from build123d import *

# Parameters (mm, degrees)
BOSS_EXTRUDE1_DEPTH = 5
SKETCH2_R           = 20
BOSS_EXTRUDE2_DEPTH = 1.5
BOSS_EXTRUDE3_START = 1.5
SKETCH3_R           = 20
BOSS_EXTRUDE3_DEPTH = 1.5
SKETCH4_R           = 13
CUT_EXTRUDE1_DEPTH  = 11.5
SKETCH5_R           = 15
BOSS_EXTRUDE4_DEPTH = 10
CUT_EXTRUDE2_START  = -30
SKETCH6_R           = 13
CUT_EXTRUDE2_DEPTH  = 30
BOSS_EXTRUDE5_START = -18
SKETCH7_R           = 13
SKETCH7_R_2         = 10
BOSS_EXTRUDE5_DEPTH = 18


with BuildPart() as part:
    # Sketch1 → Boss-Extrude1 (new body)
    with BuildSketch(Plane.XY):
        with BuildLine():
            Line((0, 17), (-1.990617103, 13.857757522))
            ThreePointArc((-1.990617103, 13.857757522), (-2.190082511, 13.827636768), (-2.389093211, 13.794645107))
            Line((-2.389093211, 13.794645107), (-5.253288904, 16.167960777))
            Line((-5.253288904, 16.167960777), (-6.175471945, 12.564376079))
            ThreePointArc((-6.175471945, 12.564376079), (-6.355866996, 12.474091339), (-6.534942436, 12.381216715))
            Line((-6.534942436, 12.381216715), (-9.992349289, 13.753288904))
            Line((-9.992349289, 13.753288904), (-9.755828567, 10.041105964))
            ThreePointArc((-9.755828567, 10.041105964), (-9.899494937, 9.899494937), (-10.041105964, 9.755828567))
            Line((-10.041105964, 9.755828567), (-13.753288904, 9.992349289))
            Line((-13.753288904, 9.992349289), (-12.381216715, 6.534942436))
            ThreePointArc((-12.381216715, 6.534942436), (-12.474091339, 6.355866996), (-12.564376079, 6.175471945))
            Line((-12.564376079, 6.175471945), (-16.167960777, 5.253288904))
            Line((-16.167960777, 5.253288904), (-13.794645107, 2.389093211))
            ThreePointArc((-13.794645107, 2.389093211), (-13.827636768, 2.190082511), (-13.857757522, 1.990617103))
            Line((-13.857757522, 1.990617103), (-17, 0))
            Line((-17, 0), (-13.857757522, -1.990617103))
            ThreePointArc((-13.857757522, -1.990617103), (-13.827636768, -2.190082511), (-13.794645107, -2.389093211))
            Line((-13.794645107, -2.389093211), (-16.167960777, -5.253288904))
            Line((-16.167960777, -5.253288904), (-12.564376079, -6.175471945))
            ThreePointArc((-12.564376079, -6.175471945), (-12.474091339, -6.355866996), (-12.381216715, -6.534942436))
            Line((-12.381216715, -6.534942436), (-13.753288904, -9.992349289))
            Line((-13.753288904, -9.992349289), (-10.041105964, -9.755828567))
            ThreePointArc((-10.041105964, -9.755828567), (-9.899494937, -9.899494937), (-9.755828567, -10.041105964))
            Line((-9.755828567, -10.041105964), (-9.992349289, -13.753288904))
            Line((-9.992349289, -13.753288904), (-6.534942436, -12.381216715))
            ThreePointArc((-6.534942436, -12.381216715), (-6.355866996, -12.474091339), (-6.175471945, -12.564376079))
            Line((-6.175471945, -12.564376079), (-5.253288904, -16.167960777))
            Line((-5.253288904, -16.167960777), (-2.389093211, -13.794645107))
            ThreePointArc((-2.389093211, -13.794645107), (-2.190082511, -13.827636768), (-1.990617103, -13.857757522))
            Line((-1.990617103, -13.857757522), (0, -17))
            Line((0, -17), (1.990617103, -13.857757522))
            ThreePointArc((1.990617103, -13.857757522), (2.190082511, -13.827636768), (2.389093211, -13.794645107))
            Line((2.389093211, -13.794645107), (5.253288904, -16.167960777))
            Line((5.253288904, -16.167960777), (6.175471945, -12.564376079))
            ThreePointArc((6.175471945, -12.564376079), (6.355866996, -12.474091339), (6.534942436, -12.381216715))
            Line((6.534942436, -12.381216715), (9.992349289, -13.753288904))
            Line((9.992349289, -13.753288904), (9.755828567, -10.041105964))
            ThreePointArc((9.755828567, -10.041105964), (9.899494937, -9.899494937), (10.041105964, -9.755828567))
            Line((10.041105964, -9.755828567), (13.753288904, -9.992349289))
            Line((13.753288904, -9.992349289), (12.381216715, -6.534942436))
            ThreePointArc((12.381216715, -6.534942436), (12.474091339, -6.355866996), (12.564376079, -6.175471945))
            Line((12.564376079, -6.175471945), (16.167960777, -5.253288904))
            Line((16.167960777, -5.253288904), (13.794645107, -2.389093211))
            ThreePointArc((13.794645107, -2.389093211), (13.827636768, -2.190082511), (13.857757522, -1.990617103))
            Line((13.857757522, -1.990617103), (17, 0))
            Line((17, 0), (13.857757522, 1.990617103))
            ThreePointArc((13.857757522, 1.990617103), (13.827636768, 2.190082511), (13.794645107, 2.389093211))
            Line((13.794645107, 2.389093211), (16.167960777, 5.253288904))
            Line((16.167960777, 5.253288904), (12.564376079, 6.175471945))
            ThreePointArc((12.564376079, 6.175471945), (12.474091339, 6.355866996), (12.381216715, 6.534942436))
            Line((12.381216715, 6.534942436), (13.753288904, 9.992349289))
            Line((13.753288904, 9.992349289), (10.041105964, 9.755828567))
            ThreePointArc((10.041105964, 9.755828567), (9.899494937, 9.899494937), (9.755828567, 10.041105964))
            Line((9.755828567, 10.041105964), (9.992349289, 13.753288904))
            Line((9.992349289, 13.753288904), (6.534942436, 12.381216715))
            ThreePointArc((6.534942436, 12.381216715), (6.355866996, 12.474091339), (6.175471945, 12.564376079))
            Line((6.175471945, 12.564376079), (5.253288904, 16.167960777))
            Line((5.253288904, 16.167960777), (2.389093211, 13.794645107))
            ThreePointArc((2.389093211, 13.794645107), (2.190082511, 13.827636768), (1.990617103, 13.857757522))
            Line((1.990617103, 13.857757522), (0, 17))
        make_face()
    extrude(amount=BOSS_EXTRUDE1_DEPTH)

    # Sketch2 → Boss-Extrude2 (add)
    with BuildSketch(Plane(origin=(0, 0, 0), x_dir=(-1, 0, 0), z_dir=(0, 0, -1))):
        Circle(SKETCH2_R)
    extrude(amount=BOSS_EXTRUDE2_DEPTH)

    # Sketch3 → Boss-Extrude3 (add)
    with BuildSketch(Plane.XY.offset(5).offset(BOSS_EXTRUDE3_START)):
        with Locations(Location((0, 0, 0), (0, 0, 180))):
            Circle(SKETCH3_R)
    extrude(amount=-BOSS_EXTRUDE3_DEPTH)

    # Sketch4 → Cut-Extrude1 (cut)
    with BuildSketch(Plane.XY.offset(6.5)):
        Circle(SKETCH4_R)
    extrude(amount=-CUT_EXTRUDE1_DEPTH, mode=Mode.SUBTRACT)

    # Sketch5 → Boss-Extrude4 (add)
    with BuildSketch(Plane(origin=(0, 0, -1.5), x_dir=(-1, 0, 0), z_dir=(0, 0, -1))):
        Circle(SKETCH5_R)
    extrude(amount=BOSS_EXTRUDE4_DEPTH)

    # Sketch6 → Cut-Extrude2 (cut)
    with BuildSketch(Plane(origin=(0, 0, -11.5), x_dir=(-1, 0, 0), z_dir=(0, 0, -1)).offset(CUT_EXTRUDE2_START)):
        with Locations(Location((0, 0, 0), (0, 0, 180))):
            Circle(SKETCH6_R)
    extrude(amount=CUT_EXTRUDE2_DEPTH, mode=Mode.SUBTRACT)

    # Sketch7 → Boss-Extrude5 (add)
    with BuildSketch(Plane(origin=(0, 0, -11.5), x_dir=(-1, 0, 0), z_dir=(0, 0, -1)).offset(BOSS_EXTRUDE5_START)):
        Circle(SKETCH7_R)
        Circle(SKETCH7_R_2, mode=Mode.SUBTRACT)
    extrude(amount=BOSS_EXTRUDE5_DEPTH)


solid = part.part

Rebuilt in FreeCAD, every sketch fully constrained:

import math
import FreeCAD as App
import Part
import Sketcher
Q = App.Units.Quantity

doc = App.newDocument("Part")
body = doc.addObject("PartDesign::Body", "Body")

sketch1 = doc.addObject("Sketcher::SketchObject", "Sketch")
body.addObject(sketch1)
sketch1.AttachmentSupport = (doc.XY_Plane, [""])
sketch1.MapMode = "FlatFace"
sketch1.addGeometry([
    Part.LineSegment(App.Vector(0, 17, 0), App.Vector(-1.99, 13.86, 0)),
    Part.ArcOfCircle(Part.Circle(App.Vector(0, 0, 0), App.Vector(0, 0, 1), 14), math.radians(98.17), math.radians(99.83)),
    Part.LineSegment(App.Vector(-2.39, 13.79, 0), App.Vector(-5.25, 16.17, 0)),
    Part.LineSegment(App.Vector(-5.25, 16.17, 0), App.Vector(-6.18, 12.56, 0)),
    Part.ArcOfCircle(Part.Circle(App.Vector(0, 0, 0), App.Vector(0, 0, 1), 14), math.radians(116.17), math.radians(117.83)),
    Part.LineSegment(App.Vector(-6.53, 12.38, 0), App.Vector(-9.99, 13.75, 0)),
    Part.LineSegment(App.Vector(-9.99, 13.75, 0), App.Vector(-9.76, 10.04, 0)),
    Part.ArcOfCircle(Part.Circle(App.Vector(0, 0, 0), App.Vector(0, 0, 1), 14), math.radians(134.17), math.radians(135.83)),
    Part.LineSegment(App.Vector(-10.04, 9.76, 0), App.Vector(-13.75, 9.99, 0)),
    Part.LineSegment(App.Vector(-13.75, 9.99, 0), App.Vector(-12.38, 6.53, 0)),
    Part.ArcOfCircle(Part.Circle(App.Vector(0, 0, 0), App.Vector(0, 0, 1), 14), math.radians(152.17), math.radians(153.83)),
    Part.LineSegment(App.Vector(-12.56, 6.18, 0), App.Vector(-16.17, 5.25, 0)),
    Part.LineSegment(App.Vector(-16.17, 5.25, 0), App.Vector(-13.79, 2.39, 0)),
    Part.ArcOfCircle(Part.Circle(App.Vector(0, 0, 0), App.Vector(0, 0, 1), 14), math.radians(170.17), math.radians(171.83)),
    Part.LineSegment(App.Vector(-13.86, 1.99, 0), App.Vector(-17, 0, 0)),
    Part.LineSegment(App.Vector(-17, 0, 0), App.Vector(-13.86, -1.99, 0)),
    Part.ArcOfCircle(Part.Circle(App.Vector(0, 0, 0), App.Vector(0, 0, 1), 14), math.radians(-171.83), math.radians(-170.17)),
    Part.LineSegment(App.Vector(-13.79, -2.39, 0), App.Vector(-16.17, -5.25, 0)),
    Part.LineSegment(App.Vector(-16.17, -5.25, 0), App.Vector(-12.56, -6.18, 0)),
    Part.ArcOfCircle(Part.Circle(App.Vector(0, 0, 0), App.Vector(0, 0, 1), 14), math.radians(-153.83), math.radians(-152.17)),
    Part.LineSegment(App.Vector(-12.38, -6.53, 0), App.Vector(-13.75, -9.99, 0)),
    Part.LineSegment(App.Vector(-13.75, -9.99, 0), App.Vector(-10.04, -9.76, 0)),
    Part.ArcOfCircle(Part.Circle(App.Vector(0, 0, 0), App.Vector(0, 0, 1), 14), math.radians(-135.83), math.radians(-134.17)),
    Part.LineSegment(App.Vector(-9.76, -10.04, 0), App.Vector(-9.99, -13.75, 0)),
    Part.LineSegment(App.Vector(-9.99, -13.75, 0), App.Vector(-6.53, -12.38, 0)),
    Part.ArcOfCircle(Part.Circle(App.Vector(0, 0, 0), App.Vector(0, 0, 1), 14), math.radians(-117.83), math.radians(-116.17)),
    Part.LineSegment(App.Vector(-6.18, -12.56, 0), App.Vector(-5.25, -16.17, 0)),
    Part.LineSegment(App.Vector(-5.25, -16.17, 0), App.Vector(-2.39, -13.79, 0)),
    Part.ArcOfCircle(Part.Circle(App.Vector(0, 0, 0), App.Vector(0, 0, 1), 14), math.radians(-99.83), math.radians(-98.17)),
    Part.LineSegment(App.Vector(-1.99, -13.86, 0), App.Vector(0, -17, 0)),
    Part.LineSegment(App.Vector(0, -17, 0), App.Vector(1.99, -13.86, 0)),
    Part.ArcOfCircle(Part.Circle(App.Vector(0, 0, 0), App.Vector(0, 0, 1), 14), math.radians(-81.83), math.radians(-80.17)),
    Part.LineSegment(App.Vector(2.39, -13.79, 0), App.Vector(5.25, -16.17, 0)),
    Part.LineSegment(App.Vector(5.25, -16.17, 0), App.Vector(6.18, -12.56, 0)),
    Part.ArcOfCircle(Part.Circle(App.Vector(0, 0, 0), App.Vector(0, 0, 1), 14), math.radians(-63.83), math.radians(-62.17)),
    Part.LineSegment(App.Vector(6.53, -12.38, 0), App.Vector(9.99, -13.75, 0)),
    Part.LineSegment(App.Vector(9.99, -13.75, 0), App.Vector(9.76, -10.04, 0)),
    Part.ArcOfCircle(Part.Circle(App.Vector(0, 0, 0), App.Vector(0, 0, 1), 14), math.radians(-45.83), math.radians(-44.17)),
    Part.LineSegment(App.Vector(10.04, -9.76, 0), App.Vector(13.75, -9.99, 0)),
    Part.LineSegment(App.Vector(13.75, -9.99, 0), App.Vector(12.38, -6.53, 0)),
    Part.ArcOfCircle(Part.Circle(App.Vector(0, 0, 0), App.Vector(0, 0, 1), 14), math.radians(-27.83), math.radians(-26.17)),
    Part.LineSegment(App.Vector(12.56, -6.18, 0), App.Vector(16.17, -5.25, 0)),
    Part.LineSegment(App.Vector(16.17, -5.25, 0), App.Vector(13.79, -2.39, 0)),
    Part.ArcOfCircle(Part.Circle(App.Vector(0, 0, 0), App.Vector(0, 0, 1), 14), math.radians(-9.83), math.radians(-8.17)),
    Part.LineSegment(App.Vector(13.86, -1.99, 0), App.Vector(17, 0, 0)),
    Part.LineSegment(App.Vector(17, 0, 0), App.Vector(13.86, 1.99, 0)),
    Part.ArcOfCircle(Part.Circle(App.Vector(0, 0, 0), App.Vector(0, 0, 1), 14), math.radians(8.17), math.radians(9.83)),
    Part.LineSegment(App.Vector(13.79, 2.39, 0), App.Vector(16.17, 5.25, 0)),
    Part.LineSegment(App.Vector(16.17, 5.25, 0), App.Vector(12.56, 6.18, 0)),
    Part.ArcOfCircle(Part.Circle(App.Vector(0, 0, 0), App.Vector(0, 0, 1), 14), math.radians(26.17), math.radians(27.83)),
    Part.LineSegment(App.Vector(12.38, 6.53, 0), App.Vector(13.75, 9.99, 0)),
    Part.LineSegment(App.Vector(13.75, 9.99, 0), App.Vector(10.04, 9.76, 0)),
    Part.ArcOfCircle(Part.Circle(App.Vector(0, 0, 0), App.Vector(0, 0, 1), 14), math.radians(44.17), math.radians(45.83)),
    Part.LineSegment(App.Vector(9.76, 10.04, 0), App.Vector(9.99, 13.75, 0)),
    Part.LineSegment(App.Vector(9.99, 13.75, 0), App.Vector(6.53, 12.38, 0)),
    Part.ArcOfCircle(Part.Circle(App.Vector(0, 0, 0), App.Vector(0, 0, 1), 14), math.radians(62.17), math.radians(63.83)),
    Part.LineSegment(App.Vector(6.18, 12.56, 0), App.Vector(5.25, 16.17, 0)),
    Part.LineSegment(App.Vector(5.25, 16.17, 0), App.Vector(2.39, 13.79, 0)),
    Part.ArcOfCircle(Part.Circle(App.Vector(0, 0, 0), App.Vector(0, 0, 1), 14), math.radians(80.17), math.radians(81.83)),
    Part.LineSegment(App.Vector(1.99, 13.86, 0), App.Vector(0, 17, 0)),
], False)
sketch1.addConstraint([
    Sketcher.Constraint("Coincident", 0, 2, 1, 1),
    Sketcher.Constraint("Coincident", 1, 2, 2, 1),
    Sketcher.Constraint("Coincident", 2, 2, 3, 1),
    Sketcher.Constraint("Coincident", 3, 2, 4, 1),
    Sketcher.Constraint("Coincident", 4, 2, 5, 1),
    Sketcher.Constraint("Coincident", 5, 2, 6, 1),
    Sketcher.Constraint("Coincident", 6, 2, 7, 1),
    Sketcher.Constraint("Coincident", 7, 2, 8, 1),
    Sketcher.Constraint("Coincident", 8, 2, 9, 1),
    Sketcher.Constraint("Coincident", 9, 2, 10, 1),
    Sketcher.Constraint("Coincident", 10, 2, 11, 1),
    Sketcher.Constraint("Coincident", 11, 2, 12, 1),
    Sketcher.Constraint("Coincident", 12, 2, 13, 1),
    Sketcher.Constraint("Coincident", 13, 2, 14, 1),
    Sketcher.Constraint("Coincident", 14, 2, 15, 1),
    Sketcher.Constraint("Coincident", 15, 2, 16, 1),
    Sketcher.Constraint("Coincident", 16, 2, 17, 1),
    Sketcher.Constraint("Coincident", 17, 2, 18, 1),
    Sketcher.Constraint("Coincident", 18, 2, 19, 1),
    Sketcher.Constraint("Coincident", 19, 2, 20, 1),
    Sketcher.Constraint("Coincident", 20, 2, 21, 1),
    Sketcher.Constraint("Coincident", 21, 2, 22, 1),
    Sketcher.Constraint("Coincident", 22, 2, 23, 1),
    Sketcher.Constraint("Coincident", 23, 2, 24, 1),
    Sketcher.Constraint("Coincident", 24, 2, 25, 1),
    Sketcher.Constraint("Coincident", 25, 2, 26, 1),
    Sketcher.Constraint("Coincident", 26, 2, 27, 1),
    Sketcher.Constraint("Coincident", 27, 2, 28, 1),
    Sketcher.Constraint("Coincident", 28, 2, 29, 1),
    Sketcher.Constraint("Coincident", 29, 2, 30, 1),
    Sketcher.Constraint("Coincident", 30, 2, 31, 1),
    Sketcher.Constraint("Coincident", 31, 2, 32, 1),
    Sketcher.Constraint("Coincident", 32, 2, 33, 1),
    Sketcher.Constraint("Coincident", 33, 2, 34, 1),
    Sketcher.Constraint("Coincident", 34, 2, 35, 1),
    Sketcher.Constraint("Coincident", 35, 2, 36, 1),
    Sketcher.Constraint("Coincident", 36, 2, 37, 1),
    Sketcher.Constraint("Coincident", 37, 2, 38, 1),
    Sketcher.Constraint("Coincident", 38, 2, 39, 1),
    Sketcher.Constraint("Coincident", 39, 2, 40, 1),
    Sketcher.Constraint("Coincident", 40, 2, 41, 1),
    Sketcher.Constraint("Coincident", 41, 2, 42, 1),
    Sketcher.Constraint("Coincident", 42, 2, 43, 1),
    Sketcher.Constraint("Coincident", 43, 2, 44, 1),
    Sketcher.Constraint("Coincident", 44, 2, 45, 1),
    Sketcher.Constraint("Coincident", 45, 2, 46, 1),
    Sketcher.Constraint("Coincident", 46, 2, 47, 1),
    Sketcher.Constraint("Coincident", 47, 2, 48, 1),
    Sketcher.Constraint("Coincident", 48, 2, 49, 1),
    Sketcher.Constraint("Coincident", 49, 2, 50, 1),
    Sketcher.Constraint("Coincident", 50, 2, 51, 1),
    Sketcher.Constraint("Coincident", 51, 2, 52, 1),
    Sketcher.Constraint("Coincident", 52, 2, 53, 1),
    Sketcher.Constraint("Coincident", 53, 2, 54, 1),
    Sketcher.Constraint("Coincident", 54, 2, 55, 1),
    Sketcher.Constraint("Coincident", 55, 2, 56, 1),
    Sketcher.Constraint("Coincident", 56, 2, 57, 1),
    Sketcher.Constraint("Coincident", 57, 2, 58, 1),
    Sketcher.Constraint("Coincident", 58, 2, 59, 1),
    Sketcher.Constraint("Coincident", 59, 2, 0, 1),
    Sketcher.Constraint("Coincident", 1, 3, -1, 1),
    Sketcher.Constraint("Coincident", 4, 3, -1, 1),
    Sketcher.Constraint("Coincident", 7, 3, -1, 1),
    Sketcher.Constraint("Coincident", 10, 3, -1, 1),
    Sketcher.Constraint("Coincident", 13, 3, -1, 1),
    Sketcher.Constraint("Coincident", 16, 3, -1, 1),
    Sketcher.Constraint("Coincident", 19, 3, -1, 1),
    Sketcher.Constraint("Coincident", 22, 3, -1, 1),
    Sketcher.Constraint("Coincident", 25, 3, -1, 1),
    Sketcher.Constraint("Coincident", 28, 3, -1, 1),
    Sketcher.Constraint("Coincident", 31, 3, -1, 1),
    Sketcher.Constraint("Coincident", 34, 3, -1, 1),
    Sketcher.Constraint("Coincident", 37, 3, -1, 1),
    Sketcher.Constraint("Coincident", 40, 3, -1, 1),
    Sketcher.Constraint("Coincident", 43, 3, -1, 1),
    Sketcher.Constraint("Coincident", 46, 3, -1, 1),
    Sketcher.Constraint("Coincident", 49, 3, -1, 1),
    Sketcher.Constraint("Coincident", 52, 3, -1, 1),
    Sketcher.Constraint("Coincident", 55, 3, -1, 1),
    Sketcher.Constraint("Coincident", 58, 3, -1, 1),
    Sketcher.Constraint("Equal", 4, 10),
    Sketcher.Constraint("Equal", 1, 13),
    Sketcher.Constraint("Equal", 13, 16),
    Sketcher.Constraint("Equal", 10, 19),
    Sketcher.Constraint("Equal", 7, 22),
    Sketcher.Constraint("Equal", 19, 25),
    Sketcher.Constraint("Equal", 16, 28),
    Sketcher.Constraint("Equal", 28, 31),
    Sketcher.Constraint("Equal", 25, 34),
    Sketcher.Constraint("Equal", 22, 37),
    Sketcher.Constraint("Equal", 34, 40),
    Sketcher.Constraint("Equal", 31, 43),
    Sketcher.Constraint("Equal", 43, 46),
    Sketcher.Constraint("Equal", 40, 49),
    Sketcher.Constraint("Equal", 37, 52),
    Sketcher.Constraint("Equal", 49, 55),
    Sketcher.Constraint("Equal", 46, 58),
    Sketcher.Constraint("Symmetric", 2, 2, 32, 2, -1, 1),
    Sketcher.Constraint("Symmetric", 5, 2, 35, 2, -1, 1),
    Sketcher.Constraint("Symmetric", 8, 2, 38, 2, -1, 1),
    Sketcher.Constraint("Symmetric", 11, 2, 41, 2, -1, 1),
    Sketcher.Constraint("Symmetric", 14, 2, 44, 2, -1, 1),
    Sketcher.Constraint("Symmetric", 17, 2, 47, 2, -1, 1),
    Sketcher.Constraint("Symmetric", 20, 2, 50, 2, -1, 1),
    Sketcher.Constraint("Symmetric", 23, 2, 53, 2, -1, 1),
    Sketcher.Constraint("Symmetric", 26, 2, 56, 2, -1, 1),
    Sketcher.Constraint("Symmetric", 29, 2, 59, 2, -1, 1),
    Sketcher.Constraint("Symmetric", 26, 2, 32, 2, -2),
    Sketcher.Constraint("Symmetric", 23, 2, 35, 2, -2),
    Sketcher.Constraint("Symmetric", 20, 2, 38, 2, -2),
    Sketcher.Constraint("Symmetric", 17, 2, 41, 2, -2),
    Sketcher.Constraint("PointOnObject", 14, 2, -1),
    Sketcher.Constraint("PointOnObject", 29, 2, -2),
    Sketcher.Constraint("Perpendicular", 0, 15),
    Sketcher.Constraint("Perpendicular", 2, 17),
    Sketcher.Constraint("Perpendicular", 3, 18),
    Sketcher.Constraint("Perpendicular", 5, 20),
    Sketcher.Constraint("Perpendicular", 6, 21),
    Sketcher.Constraint("Perpendicular", 8, 23),
    Sketcher.Constraint("Perpendicular", 9, 24),
    Sketcher.Constraint("Perpendicular", 11, 26),
    Sketcher.Constraint("Perpendicular", 12, 27),
    Sketcher.Constraint("Perpendicular", 14, 29),
    Sketcher.Constraint("Perpendicular", 15, 30),
    Sketcher.Constraint("Perpendicular", 17, 32),
    Sketcher.Constraint("Perpendicular", 18, 33),
    Sketcher.Constraint("Perpendicular", 20, 35),
    Sketcher.Constraint("Perpendicular", 21, 36),
    Sketcher.Constraint("Perpendicular", 23, 38),
    Sketcher.Constraint("Perpendicular", 24, 39),
    Sketcher.Constraint("Perpendicular", 26, 41),
    Sketcher.Constraint("Perpendicular", 27, 42),
    Sketcher.Constraint("Perpendicular", 29, 44),
    Sketcher.Constraint("Perpendicular", 30, 45),
    Sketcher.Constraint("Perpendicular", 32, 47),
    Sketcher.Constraint("Perpendicular", 33, 48),
    Sketcher.Constraint("Perpendicular", 35, 50),
    Sketcher.Constraint("Perpendicular", 36, 51),
    Sketcher.Constraint("Perpendicular", 38, 53),
    Sketcher.Constraint("Perpendicular", 39, 54),
    Sketcher.Constraint("Perpendicular", 41, 56),
    Sketcher.Constraint("Perpendicular", 42, 57),
    Sketcher.Constraint("Perpendicular", 44, 59),
    Sketcher.Constraint("Horizontal", 28, 2, 30, 2),
    Sketcher.Constraint("Horizontal", 27, 2, 31, 2),
    Sketcher.Constraint("Horizontal", 25, 2, 33, 2),
    Sketcher.Constraint("Horizontal", 24, 2, 34, 2),
    Sketcher.Constraint("Horizontal", 22, 2, 36, 2),
    Sketcher.Constraint("Equal", 0, 2),
    Sketcher.Constraint("Equal", 2, 3),
    Sketcher.Constraint("Equal", 3, 5),
    Sketcher.Constraint("Equal", 5, 6),
    Sketcher.Constraint("Equal", 6, 8),
    Sketcher.Constraint("Equal", 8, 9),
    Sketcher.Constraint("Equal", 9, 11),
    Sketcher.Constraint("Equal", 11, 12),
    Sketcher.Constraint("Equal", 12, 14),
    Sketcher.Constraint("Radius", 1, Q("14 mm")),
    Sketcher.Constraint("DistanceX", 14, 2, -1, 1, Q("17 mm")),
    Sketcher.Constraint("Radius", 4, Q("13.999996 mm")),
    Sketcher.Constraint("Radius", 7, Q("13.999998 mm")),
    Sketcher.Constraint("Distance", 0, Q("3.71971 mm")),
    Sketcher.Constraint("DistanceX", 2, 2, -1, 1, Q("5.253289 mm")),
    Sketcher.Constraint("DistanceY", -1, 1, 2, 2, Q("16.167961 mm")),
    Sketcher.Constraint("DistanceX", 5, 2, -1, 1, Q("9.992349 mm")),
    Sketcher.Constraint("DistanceY", -1, 1, 5, 2, Q("13.753289 mm")),
])
pad1 = doc.addObject("PartDesign::Pad", "Pad")
body.addObject(pad1)
pad1.Profile = sketch1
pad1.Length = 5

sketch2 = doc.addObject("Sketcher::SketchObject", "Sketch001")
body.addObject(sketch2)
sketch2.AttachmentSupport = (doc.XY_Plane, [""])
sketch2.MapMode = "FlatFace"
sketch2.addGeometry(Part.Circle(App.Vector(0, 0, 0), App.Vector(0, 0, 1), 20), False)
sketch2.addConstraint([
    Sketcher.Constraint("Coincident", 0, 3, -1, 1),
    Sketcher.Constraint("Diameter", 0, Q("40 mm")),
])
pad2 = doc.addObject("PartDesign::Pad", "Pad001")
body.addObject(pad2)
pad2.Profile = sketch2
pad2.Length = 1.5
pad2.Reversed = True

sketch3 = doc.addObject("Sketcher::SketchObject", "Sketch002")
body.addObject(sketch3)
sketch3.AttachmentSupport = (doc.XY_Plane, [""])
sketch3.MapMode = "FlatFace"
sketch3.AttachmentOffset = App.Placement(App.Vector(0, 0, 6.5), App.Rotation())
sketch3.addGeometry(Part.Circle(App.Vector(0, 0, 0), App.Vector(0, 0, 1), 20), False)
sketch3.addConstraint([
    Sketcher.Constraint("Coincident", 0, 3, -1, 1),
    Sketcher.Constraint("Diameter", 0, Q("40 mm")),
])
pad3 = doc.addObject("PartDesign::Pad", "Pad002")
body.addObject(pad3)
pad3.Profile = sketch3
pad3.Length = 1.5
pad3.Reversed = True

sketch4 = doc.addObject("Sketcher::SketchObject", "Sketch003")
body.addObject(sketch4)
sketch4.AttachmentSupport = (doc.XY_Plane, [""])
sketch4.MapMode = "FlatFace"
sketch4.AttachmentOffset = App.Placement(App.Vector(0, 0, 6.5), App.Rotation())
sketch4.addGeometry(Part.Circle(App.Vector(0, 0, 0), App.Vector(0, 0, 1), 13), False)
sketch4.addConstraint([
    Sketcher.Constraint("Coincident", 0, 3, -1, 1),
    Sketcher.Constraint("Diameter", 0, Q("26 mm")),
])
pocket1 = doc.addObject("PartDesign::Pocket", "Pocket")
body.addObject(pocket1)
pocket1.Profile = sketch4
pocket1.Length = 11.5

sketch5 = doc.addObject("Sketcher::SketchObject", "Sketch004")
body.addObject(sketch5)
sketch5.AttachmentSupport = (doc.XY_Plane, [""])
sketch5.MapMode = "FlatFace"
sketch5.AttachmentOffset = App.Placement(App.Vector(0, 0, -1.5), App.Rotation())
sketch5.addGeometry(Part.Circle(App.Vector(0, 0, 0), App.Vector(0, 0, 1), 15), False)
sketch5.addConstraint([
    Sketcher.Constraint("Coincident", 0, 3, -1, 1),
    Sketcher.Constraint("Diameter", 0, Q("30 mm")),
])
pad4 = doc.addObject("PartDesign::Pad", "Pad003")
body.addObject(pad4)
pad4.Profile = sketch5
pad4.Length = 10
pad4.Reversed = True

sketch6 = doc.addObject("Sketcher::SketchObject", "Sketch005")
body.addObject(sketch6)
sketch6.AttachmentSupport = (doc.XY_Plane, [""])
sketch6.MapMode = "FlatFace"
sketch6.AttachmentOffset = App.Placement(App.Vector(0, 0, 18.5), App.Rotation())
sketch6.addGeometry(Part.Circle(App.Vector(0, 0, 0), App.Vector(0, 0, 1), 13), False)
sketch6.addConstraint([
    Sketcher.Constraint("Coincident", 0, 3, -1, 1),
    Sketcher.Constraint("Diameter", 0, Q("26 mm")),
])
pocket2 = doc.addObject("PartDesign::Pocket", "Pocket001")
body.addObject(pocket2)
pocket2.Profile = sketch6
pocket2.Length = 30

sketch7 = doc.addObject("Sketcher::SketchObject", "Sketch006")
body.addObject(sketch7)
sketch7.AttachmentSupport = (doc.XY_Plane, [""])
sketch7.MapMode = "FlatFace"
sketch7.AttachmentOffset = App.Placement(App.Vector(0, 0, 6.5), App.Rotation())
sketch7.addGeometry([
    Part.Circle(App.Vector(0, 0, 0), App.Vector(0, 0, 1), 13),
    Part.Circle(App.Vector(0, 0, 0), App.Vector(0, 0, 1), 10),
], False)
sketch7.addConstraint([
    Sketcher.Constraint("Coincident", 0, 3, -1, 1),
    Sketcher.Constraint("Coincident", 1, 3, -1, 1),
    Sketcher.Constraint("Diameter", 0, Q("26 mm")),
    Sketcher.Constraint("Diameter", 1, Q("20 mm")),
])
pad5 = doc.addObject("PartDesign::Pad", "Pad004")
body.addObject(pad5)
pad5.Profile = sketch7
pad5.Length = 18
pad5.Reversed = True

doc.recompute()
